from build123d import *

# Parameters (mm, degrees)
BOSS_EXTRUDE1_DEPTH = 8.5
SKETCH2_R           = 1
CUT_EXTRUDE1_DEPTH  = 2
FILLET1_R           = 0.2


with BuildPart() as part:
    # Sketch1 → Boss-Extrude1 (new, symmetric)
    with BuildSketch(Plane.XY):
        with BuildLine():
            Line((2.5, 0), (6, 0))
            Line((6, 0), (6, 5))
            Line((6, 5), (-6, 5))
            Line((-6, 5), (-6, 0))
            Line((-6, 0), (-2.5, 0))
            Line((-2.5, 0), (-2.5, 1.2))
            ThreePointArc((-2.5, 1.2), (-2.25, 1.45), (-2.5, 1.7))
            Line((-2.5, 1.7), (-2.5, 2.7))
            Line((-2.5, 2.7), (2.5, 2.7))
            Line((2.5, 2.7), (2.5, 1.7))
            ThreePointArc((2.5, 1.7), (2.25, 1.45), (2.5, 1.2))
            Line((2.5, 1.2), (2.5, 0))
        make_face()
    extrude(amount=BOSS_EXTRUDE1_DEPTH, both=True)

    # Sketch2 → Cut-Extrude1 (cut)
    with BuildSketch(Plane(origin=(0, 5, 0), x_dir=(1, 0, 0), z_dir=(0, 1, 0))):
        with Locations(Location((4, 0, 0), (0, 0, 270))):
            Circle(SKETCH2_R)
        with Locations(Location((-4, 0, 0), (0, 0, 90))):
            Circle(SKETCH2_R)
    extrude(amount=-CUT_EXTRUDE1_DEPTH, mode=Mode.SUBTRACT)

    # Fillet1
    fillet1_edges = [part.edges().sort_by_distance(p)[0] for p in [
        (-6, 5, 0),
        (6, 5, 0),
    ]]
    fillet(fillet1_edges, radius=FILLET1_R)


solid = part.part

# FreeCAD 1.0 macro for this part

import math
import FreeCAD as App
import Part
import Sketcher
Q = App.Units.Quantity


def edges_at(feature, points):
    """Names of the edges that pass closest to the given points."""
    edges = feature.Shape.Edges
    near = lambda p: min(range(len(edges)), key=lambda i: edges[i].distToShape(Part.Vertex(*p))[0])
    return sorted({f"Edge{near(p) + 1}" for p in points})

doc = App.newDocument("Part")
params = doc.addObject("Spreadsheet::Sheet", "Params")
for row, (alias, value) in enumerate([
    ("sketch1_width", "12 mm"),
    ("sketch1_width2", "5 mm"),
    ("sketch1_height", "1 mm"),
    ("sketch1_radius", "0.25 mm"),
    ("sketch1_height2", "1.2 mm"),
    ("pad1_length", "17 mm"),
    ("sketch2_diameter", "2 mm"),
    ("pocket1_length", "2 mm"),
    ("fillet_radius", "0.2 mm"),
], start=1):
    params.set(f"A{row}", alias)
    params.set(f"B{row}", "=" + value)
    params.setAlias(f"B{row}", alias)

body = doc.addObject("PartDesign::Body", "Body")

sketch1 = body.newObject("Sketcher::SketchObject", "Sketch")
sketch1.AttachmentSupport = (doc.getObject("XY_Plane"), [""])
sketch1.MapMode = "FlatFace"
sketch1.addGeometry([
    Part.LineSegment(App.Vector(2.5, 0, 0), App.Vector(6, 0, 0)),
    Part.LineSegment(App.Vector(6, 0, 0), App.Vector(6, 5, 0)),
    Part.LineSegment(App.Vector(6, 5, 0), App.Vector(-6, 5, 0)),
    Part.LineSegment(App.Vector(-6, 5, 0), App.Vector(-6, 0, 0)),
    Part.LineSegment(App.Vector(-6, 0, 0), App.Vector(-2.5, 0, 0)),
    Part.LineSegment(App.Vector(-2.5, 0, 0), App.Vector(-2.5, 1.2, 0)),
    Part.ArcOfCircle(Part.Circle(App.Vector(-2.5, 1.45, 0), App.Vector(0, 0, 1), 0.25), math.radians(-90), math.radians(90)),
    Part.LineSegment(App.Vector(-2.5, 1.7, 0), App.Vector(-2.5, 2.7, 0)),
    Part.LineSegment(App.Vector(-2.5, 2.7, 0), App.Vector(2.5, 2.7, 0)),
    Part.LineSegment(App.Vector(2.5, 2.7, 0), App.Vector(2.5, 1.7, 0)),
    Part.ArcOfCircle(Part.Circle(App.Vector(2.5, 1.45, 0), App.Vector(0, 0, 1), 0.25), math.radians(90), math.radians(270)),
    Part.LineSegment(App.Vector(2.5, 1.2, 0), App.Vector(2.5, 0, 0)),
], False)
sketch1.addConstraint([
    Sketcher.Constraint("Coincident", 0, 2, 1, 1),
    Sketcher.Constraint("Coincident", 1, 2, 2, 1),
    Sketcher.Constraint("Coincident", 2, 2, 3, 1),
    Sketcher.Constraint("Coincident", 3, 2, 4, 1),
    Sketcher.Constraint("Coincident", 4, 2, 5, 1),
    Sketcher.Constraint("Coincident", 5, 2, 6, 1),
    Sketcher.Constraint("Coincident", 6, 2, 7, 1),
    Sketcher.Constraint("Coincident", 7, 2, 8, 1),
    Sketcher.Constraint("Coincident", 8, 2, 9, 1),
    Sketcher.Constraint("Coincident", 9, 2, 10, 1),
    Sketcher.Constraint("Coincident", 10, 2, 11, 1),
    Sketcher.Constraint("Coincident", 11, 2, 0, 1),
    Sketcher.Constraint("Horizontal", 0),
    Sketcher.Constraint("Vertical", 1),
    Sketcher.Constraint("Horizontal", 2),
    Sketcher.Constraint("Vertical", 3),
    Sketcher.Constraint("Horizontal", 4),
    Sketcher.Constraint("Vertical", 5),
    Sketcher.Constraint("Vertical", 7),
    Sketcher.Constraint("Horizontal", 8),
    Sketcher.Constraint("Vertical", 9),
    Sketcher.Constraint("Vertical", 11),
    Sketcher.Constraint("Equal", 6, 10),
    Sketcher.Constraint("Symmetric", 0, 2, 3, 2, -1, 1),
    Sketcher.Constraint("Symmetric", 6, 3, 10, 3, -2),
    Sketcher.Constraint("Symmetric", 4, 2, 11, 2, -2),
    Sketcher.Constraint("Vertical", 6, 3, 4, 2),
    Sketcher.Constraint("Vertical", 5, 2, 6, 2),
    Sketcher.Constraint("Vertical", 10, 3, 8, 2),
    Sketcher.Constraint("Equal", 8, 1),
    Sketcher.Constraint("DistanceX", 2, 2, 2, 1, Q("12 mm")),
    Sketcher.Constraint("DistanceX", 8, 1, 8, 2, Q("5 mm")),
    Sketcher.Constraint("DistanceY", 7, 1, 7, 2, Q("1 mm")),
    Sketcher.Constraint("Radius", 6, Q("0.25 mm")),
    Sketcher.Constraint("DistanceY", 5, 1, 5, 2, Q("1.2 mm")),
])
sketch1.setExpression("Constraints[30]", "Params.sketch1_width")
sketch1.setExpression("Constraints[31]", "Params.sketch1_width2")
sketch1.setExpression("Constraints[32]", "Params.sketch1_height")
sketch1.setExpression("Constraints[33]", "Params.sketch1_radius")
sketch1.setExpression("Constraints[34]", "Params.sketch1_height2")
pad1 = body.newObject("PartDesign::Pad", "Pad")
pad1.Profile = sketch1
pad1.setExpression("Length", "Params.pad1_length")
pad1.Midplane = True

sketch2 = body.newObject("Sketcher::SketchObject", "Sketch001")
sketch2.AttachmentSupport = (doc.getObject("XZ_Plane"), [""])
sketch2.MapMode = "FlatFace"
sketch2.AttachmentOffset = App.Placement(App.Vector(0, 0, -5), App.Rotation())
sketch2.addGeometry([
    Part.Circle(App.Vector(4, 0, 0), App.Vector(0, 0, 1), 1),
    Part.Circle(App.Vector(-4, 0, 0), App.Vector(0, 0, 1), 1),
], False)
sketch2.addConstraint([
    Sketcher.Constraint("Equal", 0, 1),
    Sketcher.Constraint("Symmetric", 0, 3, 1, 3, -1, 1),
    Sketcher.Constraint("PointOnObject", 0, 3, -1),
    Sketcher.Constraint("Diameter", 0, Q("2 mm")),
    Sketcher.Constraint("DistanceX", -1, 1, 0, 3, Q("4 mm")),
])
sketch2.setExpression("Constraints[3]", "Params.sketch2_diameter")
pocket1 = body.newObject("PartDesign::Pocket", "Pocket")
pocket1.Profile = sketch2
pocket1.setExpression("Length", "Params.pocket1_length")
pocket1.Reversed = True
doc.recompute()

fillet = body.newObject("PartDesign::Fillet", "Fillet")
fillet.Base = (pocket1, edges_at(pocket1, [(-6, 5, 0), (6, 5, 0)]))
fillet.setExpression("Radius", "Params.fillet_radius")

doc.recompute()
